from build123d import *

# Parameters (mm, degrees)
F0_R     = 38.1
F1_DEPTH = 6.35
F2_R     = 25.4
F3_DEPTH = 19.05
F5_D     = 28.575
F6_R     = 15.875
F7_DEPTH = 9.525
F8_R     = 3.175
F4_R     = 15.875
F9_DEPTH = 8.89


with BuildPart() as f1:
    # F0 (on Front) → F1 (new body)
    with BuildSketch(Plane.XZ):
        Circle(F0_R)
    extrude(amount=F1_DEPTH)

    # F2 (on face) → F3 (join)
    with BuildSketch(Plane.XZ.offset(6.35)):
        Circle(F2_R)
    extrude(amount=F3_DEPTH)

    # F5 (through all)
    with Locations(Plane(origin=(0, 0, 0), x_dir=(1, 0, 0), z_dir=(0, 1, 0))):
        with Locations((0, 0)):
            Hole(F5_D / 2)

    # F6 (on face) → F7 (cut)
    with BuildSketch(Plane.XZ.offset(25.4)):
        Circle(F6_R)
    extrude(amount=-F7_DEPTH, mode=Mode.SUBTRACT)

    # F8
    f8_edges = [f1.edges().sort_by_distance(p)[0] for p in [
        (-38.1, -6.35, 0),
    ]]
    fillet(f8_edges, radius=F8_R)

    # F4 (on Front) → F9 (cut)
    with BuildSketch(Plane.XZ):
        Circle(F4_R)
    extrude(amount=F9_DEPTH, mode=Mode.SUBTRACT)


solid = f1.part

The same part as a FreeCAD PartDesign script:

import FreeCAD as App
import Part
import Sketcher

V = App.Vector
Q = App.Units.Quantity


def edges_at(feature, points):
    """Names of the edges that pass closest to the given points."""
    edges = feature.Shape.Edges
    near = lambda p: min(range(len(edges)), key=lambda i: edges[i].distToShape(Part.Vertex(*p))[0])
    return sorted({f"Edge{near(p) + 1}" for p in points})

doc = App.newDocument("Part")
body = doc.addObject("PartDesign::Body", "Body")

sketch1 = doc.addObject("Sketcher::SketchObject", "Sketch")
body.addObject(sketch1)
sketch1.AttachmentSupport = (doc.XZ_Plane, [""])
sketch1.MapMode = "FlatFace"
sketch1.addGeometry(Part.Circle(V(0, 0, 0), V(0, 0, 1), 38.1), False)
sketch1.addConstraint([
    Sketcher.Constraint("Coincident", 0, 3, -1, 1),
    Sketcher.Constraint("Diameter", 0, Q("3 in")),
])
pad1 = doc.addObject("PartDesign::Pad", "Pad")
body.addObject(pad1)
pad1.Profile = sketch1
pad1.Length = Q("0.25 in")

sketch2 = doc.addObject("Sketcher::SketchObject", "Sketch001")
body.addObject(sketch2)
sketch2.AttachmentSupport = (doc.XZ_Plane, [""])
sketch2.MapMode = "FlatFace"
sketch2.AttachmentOffset = App.Placement(V(0, 0, 0.25 * 25.4), App.Rotation())
sketch2.addGeometry(Part.Circle(V(0, 0, 0), V(0, 0, 1), 25.4), False)
sketch2.addConstraint([
    Sketcher.Constraint("Coincident", 0, 3, -1, 1),
    Sketcher.Constraint("Diameter", 0, Q("2 in")),
])
pad2 = doc.addObject("PartDesign::Pad", "Pad001")
body.addObject(pad2)
pad2.Profile = sketch2
pad2.Length = Q("0.75 in")

sketch3 = doc.addObject("Sketcher::SketchObject", "Sketch002")
body.addObject(sketch3)
sketch3.AttachmentSupport = (doc.XZ_Plane, [""])
sketch3.MapMode = "FlatFace"
sketch3.addGeometry(Part.Circle(V(0, 0, 0), V(0, 0, 1), 14.2875), False)
sketch3.addConstraint([
    Sketcher.Constraint("Coincident", 0, 3, -1, 1),
    Sketcher.Constraint("Diameter", 0, Q("1.125 in")),
])
doc.recompute()
hole = doc.addObject("PartDesign::Hole", "Hole")
body.addObject(hole)
hole.Profile = sketch3
hole.ThreadType = "None"
hole.Diameter = Q("1.125 in")
hole.DepthType = "ThroughAll"
hole.Reversed = True

sketch4 = doc.addObject("Sketcher::SketchObject", "Sketch003")
body.addObject(sketch4)
sketch4.AttachmentSupport = (doc.XZ_Plane, [""])
sketch4.MapMode = "FlatFace"
sketch4.AttachmentOffset = App.Placement(V(0, 0, 1 * 25.4), App.Rotation())
sketch4.addGeometry(Part.Circle(V(0, 0, 0), V(0, 0, 1), 15.875), False)
sketch4.addConstraint([
    Sketcher.Constraint("Coincident", 0, 3, -1, 1),
    Sketcher.Constraint("Diameter", 0, Q("1.25 in")),
])
pocket1 = doc.addObject("PartDesign::Pocket", "Pocket")
body.addObject(pocket1)
pocket1.Profile = sketch4
pocket1.Length = Q("0.375 in")
doc.recompute()

fillet = doc.addObject("PartDesign::Fillet", "Fillet")
body.addObject(fillet)
fillet.Base = (pocket1, edges_at(pocket1, [(-38.1, -6.35, 0)]))
fillet.Radius = Q("0.125 in")

sketch5 = doc.addObject("Sketcher::SketchObject", "Sketch004")
body.addObject(sketch5)
sketch5.AttachmentSupport = (doc.XZ_Plane, [""])
sketch5.MapMode = "FlatFace"
sketch5.addGeometry(Part.Circle(V(0, 0, 0), V(0, 0, 1), 15.875), False)
sketch5.addConstraint([
    Sketcher.Constraint("Coincident", 0, 3, -1, 1),
    Sketcher.Constraint("Diameter", 0, Q("1.25 in")),
])
pocket2 = doc.addObject("PartDesign::Pocket", "Pocket001")
body.addObject(pocket2)
pocket2.Profile = sketch5
pocket2.Length = Q("0.35 in")
pocket2.Reversed = True

doc.recompute()
